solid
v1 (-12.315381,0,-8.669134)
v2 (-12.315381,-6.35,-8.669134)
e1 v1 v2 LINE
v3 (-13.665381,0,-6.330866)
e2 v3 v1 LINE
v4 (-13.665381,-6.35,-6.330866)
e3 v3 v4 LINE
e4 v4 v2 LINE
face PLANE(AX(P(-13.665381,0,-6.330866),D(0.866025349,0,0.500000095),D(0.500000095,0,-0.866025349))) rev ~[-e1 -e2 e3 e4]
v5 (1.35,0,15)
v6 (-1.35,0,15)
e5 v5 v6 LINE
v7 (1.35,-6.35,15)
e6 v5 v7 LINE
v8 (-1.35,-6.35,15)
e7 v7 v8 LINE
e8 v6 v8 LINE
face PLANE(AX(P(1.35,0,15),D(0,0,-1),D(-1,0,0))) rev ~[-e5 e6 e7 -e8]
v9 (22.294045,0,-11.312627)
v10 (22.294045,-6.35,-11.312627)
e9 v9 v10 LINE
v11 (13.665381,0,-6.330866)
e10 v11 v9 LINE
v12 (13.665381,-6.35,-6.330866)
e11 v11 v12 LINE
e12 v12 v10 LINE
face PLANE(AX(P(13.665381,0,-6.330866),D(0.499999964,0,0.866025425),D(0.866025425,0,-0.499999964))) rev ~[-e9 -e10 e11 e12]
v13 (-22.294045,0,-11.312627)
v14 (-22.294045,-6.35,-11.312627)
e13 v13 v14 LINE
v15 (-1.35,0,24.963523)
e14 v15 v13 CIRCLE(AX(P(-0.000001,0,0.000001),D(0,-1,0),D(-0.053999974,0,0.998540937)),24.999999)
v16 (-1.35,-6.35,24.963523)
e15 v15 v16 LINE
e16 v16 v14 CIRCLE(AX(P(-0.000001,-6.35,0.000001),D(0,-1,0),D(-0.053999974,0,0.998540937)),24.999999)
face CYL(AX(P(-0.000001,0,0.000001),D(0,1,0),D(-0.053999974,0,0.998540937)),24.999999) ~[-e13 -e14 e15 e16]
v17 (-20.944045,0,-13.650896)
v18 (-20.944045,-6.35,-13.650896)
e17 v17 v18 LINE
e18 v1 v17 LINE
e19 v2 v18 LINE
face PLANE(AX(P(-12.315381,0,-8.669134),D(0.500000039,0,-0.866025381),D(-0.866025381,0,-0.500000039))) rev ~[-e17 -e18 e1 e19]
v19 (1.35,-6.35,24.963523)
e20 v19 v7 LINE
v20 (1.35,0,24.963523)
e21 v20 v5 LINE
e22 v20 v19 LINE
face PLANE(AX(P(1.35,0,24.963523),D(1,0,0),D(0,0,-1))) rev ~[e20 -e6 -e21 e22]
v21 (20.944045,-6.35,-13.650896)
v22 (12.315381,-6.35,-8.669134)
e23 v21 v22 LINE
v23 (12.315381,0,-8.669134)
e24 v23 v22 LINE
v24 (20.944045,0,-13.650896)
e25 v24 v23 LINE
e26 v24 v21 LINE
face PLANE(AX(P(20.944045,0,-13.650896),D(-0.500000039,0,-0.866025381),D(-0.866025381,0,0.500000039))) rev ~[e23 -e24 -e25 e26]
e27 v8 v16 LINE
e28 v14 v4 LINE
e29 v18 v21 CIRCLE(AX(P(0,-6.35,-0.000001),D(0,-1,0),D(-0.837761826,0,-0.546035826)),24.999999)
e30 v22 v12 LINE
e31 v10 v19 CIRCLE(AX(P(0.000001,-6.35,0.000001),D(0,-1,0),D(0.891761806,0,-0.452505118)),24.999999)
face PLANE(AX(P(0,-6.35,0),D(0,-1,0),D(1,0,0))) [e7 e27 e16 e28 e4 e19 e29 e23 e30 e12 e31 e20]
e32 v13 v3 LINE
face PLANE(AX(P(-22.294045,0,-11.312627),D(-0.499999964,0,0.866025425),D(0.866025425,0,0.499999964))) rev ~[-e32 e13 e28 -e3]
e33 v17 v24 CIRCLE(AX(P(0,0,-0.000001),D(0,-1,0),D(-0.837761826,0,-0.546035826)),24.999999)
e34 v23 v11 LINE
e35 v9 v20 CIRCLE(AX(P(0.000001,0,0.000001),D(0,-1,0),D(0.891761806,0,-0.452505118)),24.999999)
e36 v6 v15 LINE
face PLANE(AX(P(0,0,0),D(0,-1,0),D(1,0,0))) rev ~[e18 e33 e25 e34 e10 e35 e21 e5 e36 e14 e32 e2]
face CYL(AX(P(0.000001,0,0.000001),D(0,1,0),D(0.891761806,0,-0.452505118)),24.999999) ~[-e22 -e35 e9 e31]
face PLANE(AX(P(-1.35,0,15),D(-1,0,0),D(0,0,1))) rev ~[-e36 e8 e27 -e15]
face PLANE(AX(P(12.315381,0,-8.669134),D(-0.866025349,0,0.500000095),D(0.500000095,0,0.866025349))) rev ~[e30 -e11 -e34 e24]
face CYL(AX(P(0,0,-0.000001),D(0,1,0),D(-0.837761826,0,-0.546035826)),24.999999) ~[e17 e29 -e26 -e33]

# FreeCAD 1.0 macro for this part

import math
import FreeCAD as App
import Part
import Sketcher

V = App.Vector
Q = App.Units.Quantity

doc = App.newDocument("Part")
params = doc.addObject("Spreadsheet::Sheet", "Params")
for row, (alias, value) in enumerate([
    ("sketch1_radius", "24.999999 mm"),
    ("sketch1_width", "2.7 mm"),
    ("sketch1_length", "2.699999 mm"),
    ("pad1_length", "6.35 mm"),
], start=1):
    params.set(f"A{row}", alias)
    params.set(f"B{row}", "=" + value)
    params.setAlias(f"B{row}", alias)

body = doc.addObject("PartDesign::Body", "Body")

sketch1 = body.newObject("Sketcher::SketchObject", "Sketch")
sketch1.AttachmentSupport = (doc.getObject("XZ_Plane"), [""])
sketch1.MapMode = "FlatFace"
sketch1.addGeometry([
    Part.LineSegment(V(-1.35, 15, 0), V(-1.35, 24.963523, 0)),
    Part.ArcOfCircle(Part.Circle(V(-0.000001, 0.000001, 0), V(0, 0, 1), 24.999999), math.radians(93.095476), math.radians(206.904524)),
    Part.LineSegment(V(-22.294045, -11.312627, 0), V(-13.665381, -6.330866, 0)),
    Part.LineSegment(V(-13.665381, -6.330866, 0), V(-12.315381, -8.669134, 0)),
    Part.LineSegment(V(-12.315381, -8.669134, 0), V(-20.944045, -13.650896, 0)),
    Part.ArcOfCircle(Part.Circle(V(0, -0.000001, 0), V(0, 0, 1), 24.999999), math.radians(-146.904523), math.radians(-33.095477)),
    Part.LineSegment(V(20.944045, -13.650896, 0), V(12.315381, -8.669134, 0)),
    Part.LineSegment(V(12.315381, -8.669134, 0), V(13.665381, -6.330866, 0)),
    Part.LineSegment(V(13.665381, -6.330866, 0), V(22.294045, -11.312627, 0)),
    Part.ArcOfCircle(Part.Circle(V(0.000001, 0.000001, 0), V(0, 0, 1), 24.999999), math.radians(-26.904524), math.radians(86.904524)),
    Part.LineSegment(V(1.35, 24.963523, 0), V(1.35, 15, 0)),
    Part.LineSegment(V(1.35, 15, 0), V(-1.35, 15, 0)),
], False)
sketch1.addConstraint([
    Sketcher.Constraint("Coincident", 0, 2, 1, 1),
    Sketcher.Constraint("Coincident", 1, 2, 2, 1),
    Sketcher.Constraint("Coincident", 2, 2, 3, 1),
    Sketcher.Constraint("Coincident", 3, 2, 4, 1),
    Sketcher.Constraint("Coincident", 4, 2, 5, 1),
    Sketcher.Constraint("Coincident", 5, 2, 6, 1),
    Sketcher.Constraint("Coincident", 6, 2, 7, 1),
    Sketcher.Constraint("Coincident", 7, 2, 8, 1),
    Sketcher.Constraint("Coincident", 8, 2, 9, 1),
    Sketcher.Constraint("Coincident", 9, 2, 10, 1),
    Sketcher.Constraint("Coincident", 10, 2, 11, 1),
    Sketcher.Constraint("Coincident", 11, 2, 0, 1),
    Sketcher.Constraint("Vertical", 0),
    Sketcher.Constraint("Vertical", 10),
    Sketcher.Constraint("Horizontal", 11),
    Sketcher.Constraint("Coincident", 1, 3, -1, 1),
    Sketcher.Constraint("Coincident", 5, 3, -1, 1),
    Sketcher.Constraint("Coincident", 9, 3, -1, 1),
    Sketcher.Constraint("Equal", 1, 5),
    Sketcher.Constraint("Equal", 5, 9),
    Sketcher.Constraint("Symmetric", 3, 2, 6, 2, -2),
    Sketcher.Constraint("Symmetric", 2, 2, 7, 2, -2),
    Sketcher.Constraint("Perpendicular", 2, 3),
    Sketcher.Constraint("Perpendicular", 3, 4),
    Sketcher.Constraint("Perpendicular", 6, 7),
    Sketcher.Constraint("Perpendicular", 7, 8),
    Sketcher.Constraint("Horizontal", 0, 2, 9, 2),
    Sketcher.Constraint("Equal", 2, 4),
    Sketcher.Constraint("Radius", 1, Q("24.999999 mm")),
    Sketcher.Constraint("Angle", 2, Q("29.999998 deg")),
    Sketcher.Constraint("DistanceX", 11, 2, 11, 1, Q("2.7 mm")),
    Sketcher.Constraint("DistanceY", -1, 1, 10, 2, Q("15 mm")),
    Sketcher.Constraint("Distance", 3, Q("2.699999 mm")),
    Sketcher.Constraint("DistanceX", 2, 2, -1, 1, Q("13.665381 mm")),
])
sketch1.setExpression("Constraints[28]", "Params.sketch1_radius")
sketch1.setExpression("Constraints[30]", "Params.sketch1_width")
sketch1.setExpression("Constraints[32]", "Params.sketch1_length")
pad1 = body.newObject("PartDesign::Pad", "Pad")
pad1.Profile = sketch1
pad1.setExpression("Length", "Params.pad1_length")

doc.recompute()
